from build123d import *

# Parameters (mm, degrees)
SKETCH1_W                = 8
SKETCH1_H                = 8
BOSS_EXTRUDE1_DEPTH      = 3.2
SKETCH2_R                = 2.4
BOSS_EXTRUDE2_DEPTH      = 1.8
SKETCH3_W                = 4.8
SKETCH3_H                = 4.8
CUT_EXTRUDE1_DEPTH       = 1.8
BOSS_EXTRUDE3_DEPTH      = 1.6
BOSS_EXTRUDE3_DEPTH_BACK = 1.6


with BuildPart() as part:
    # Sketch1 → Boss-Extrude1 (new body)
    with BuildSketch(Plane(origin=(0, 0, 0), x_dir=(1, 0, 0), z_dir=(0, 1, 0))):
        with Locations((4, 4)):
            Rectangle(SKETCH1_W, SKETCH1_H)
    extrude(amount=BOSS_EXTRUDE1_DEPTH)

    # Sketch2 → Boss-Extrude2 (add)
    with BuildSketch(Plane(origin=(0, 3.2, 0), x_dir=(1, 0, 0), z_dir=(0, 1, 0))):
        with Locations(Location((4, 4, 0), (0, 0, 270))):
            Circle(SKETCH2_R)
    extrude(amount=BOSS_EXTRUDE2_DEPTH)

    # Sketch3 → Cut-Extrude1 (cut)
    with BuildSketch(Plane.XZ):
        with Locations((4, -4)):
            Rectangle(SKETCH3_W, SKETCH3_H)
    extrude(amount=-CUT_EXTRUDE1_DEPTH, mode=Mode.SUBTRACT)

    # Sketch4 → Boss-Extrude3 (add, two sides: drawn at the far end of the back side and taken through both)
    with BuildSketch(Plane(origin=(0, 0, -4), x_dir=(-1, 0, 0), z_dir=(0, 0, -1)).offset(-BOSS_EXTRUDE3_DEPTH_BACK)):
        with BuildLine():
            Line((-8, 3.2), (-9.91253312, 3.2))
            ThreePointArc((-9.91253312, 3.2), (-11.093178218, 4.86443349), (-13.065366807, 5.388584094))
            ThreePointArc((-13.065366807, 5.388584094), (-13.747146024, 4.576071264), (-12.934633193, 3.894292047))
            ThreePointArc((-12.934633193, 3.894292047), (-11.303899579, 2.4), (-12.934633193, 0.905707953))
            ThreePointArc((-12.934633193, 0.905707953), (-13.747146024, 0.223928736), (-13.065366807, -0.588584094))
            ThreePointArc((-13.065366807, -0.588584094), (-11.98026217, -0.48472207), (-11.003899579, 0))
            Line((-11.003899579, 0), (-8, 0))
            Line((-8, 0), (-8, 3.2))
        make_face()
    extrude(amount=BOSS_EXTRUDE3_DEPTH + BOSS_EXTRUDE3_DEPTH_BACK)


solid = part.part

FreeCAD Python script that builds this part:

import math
import FreeCAD as App
import Part
import Sketcher
from FreeCAD import Vector
Q = App.Units.Quantity


def add_polygon(sketch, points):
    """Adds a closed chain of lines whose ends are joined by coincident constraints."""
    first, n = sketch.GeometryCount, len(points)
    for a, b in zip(points, points[1:] + points[:1]):
        sketch.addGeometry(Part.LineSegment(App.Vector(*a, 0), App.Vector(*b, 0)), False)
    for i in range(n):
        sketch.addConstraint(Sketcher.Constraint("Coincident", first + i, 2, first + (i + 1) % n, 1))

doc = App.newDocument("Part")
body = doc.addObject("PartDesign::Body", "Body")

# Sketch on XZ plane
sketch1 = body.newObject("Sketcher::SketchObject", "Sketch")
sketch1.AttachmentSupport = (doc.getObject("XZ_Plane"), [""])
sketch1.MapMode = "FlatFace"
add_polygon(sketch1, [(0, -8), (0, 0), (8, 0), (8, -8)])  # lines 0-3
sketch1.addConstraint([
    Sketcher.Constraint("Vertical", 0),
    Sketcher.Constraint("Horizontal", 1),
    Sketcher.Constraint("Vertical", 2),
    Sketcher.Constraint("Horizontal", 3),
    Sketcher.Constraint("Coincident", 0, 2, -1, 1),
    Sketcher.Constraint("Equal", 3, 0),
    Sketcher.Constraint("DistanceX", 1, 1, 1, 2, Q("8 mm")),
])
pad1 = body.newObject("PartDesign::Pad", "Pad")
pad1.Profile = sketch1
pad1.Length = 3.2
pad1.Reversed = True

# Sketch on XZ plane
sketch2 = body.newObject("Sketcher::SketchObject", "Sketch001")
sketch2.AttachmentSupport = (doc.getObject("XZ_Plane"), [""])
sketch2.MapMode = "FlatFace"
sketch2.AttachmentOffset = App.Placement(Vector(0, 0, -3.2), App.Rotation())
sketch2.addGeometry(Part.Circle(Vector(4, -4, 0), Vector(0, 0, 1), 2.4), False)
sketch2.addConstraint([
    Sketcher.Constraint("Diameter", 0, Q("4.8 mm")),
    Sketcher.Constraint("DistanceX", -1, 1, 0, 3, Q("4 mm")),
    Sketcher.Constraint("DistanceY", 0, 3, -1, 1, Q("4 mm")),
])
pad2 = body.newObject("PartDesign::Pad", "Pad001")
pad2.Profile = sketch2
pad2.Length = 1.8
pad2.Reversed = True

# Sketch on XZ plane
sketch3 = body.newObject("Sketcher::SketchObject", "Sketch002")
sketch3.AttachmentSupport = (doc.getObject("XZ_Plane"), [""])
sketch3.MapMode = "FlatFace"
add_polygon(sketch3, [(1.6, -1.6), (1.6, -6.4), (6.4, -6.4), (6.4, -1.6)])  # lines 0-3
sketch3.addConstraint([
    Sketcher.Constraint("Vertical", 0),
    Sketcher.Constraint("Horizontal", 1),
    Sketcher.Constraint("Vertical", 2),
    Sketcher.Constraint("Horizontal", 3),
    Sketcher.Constraint("Equal", 3, 0),
    Sketcher.Constraint("DistanceX", 1, 1, 1, 2, Q("4.8 mm")),
    Sketcher.Constraint("DistanceX", -1, 1, 0, 2, Q("1.6 mm")),
    Sketcher.Constraint("DistanceY", 0, 2, -1, 1, Q("6.4 mm")),
])
pocket1 = body.newObject("PartDesign::Pocket", "Pocket")
pocket1.Profile = sketch3
pocket1.Length = 1.8

# Sketch on XY plane
sketch4 = body.newObject("Sketcher::SketchObject", "Sketch003")
sketch4.AttachmentSupport = (doc.getObject("XY_Plane"), [""])
sketch4.MapMode = "FlatFace"
sketch4.AttachmentOffset = App.Placement(Vector(0, 0, -4), App.Rotation())
sketch4.addGeometry([
    Part.LineSegment(Vector(8, 3.2, 0), Vector(9.912533, 3.2, 0)),  # 0
    Part.ArcOfCircle(Part.Circle(Vector(12.8039, 2.4, 0), Vector(0, 0, 1), 3), math.radians(85), math.radians(164.53399)),  # 1
    Part.ArcOfCircle(Part.Circle(Vector(13, 4.641438, 0), Vector(0, 0, 1), 0.75), math.radians(-95), math.radians(85)),  # 2
    Part.ArcOfCircle(Part.Circle(Vector(12.8039, 2.4, 0), Vector(0, 0, 1), 1.5), math.radians(85), math.radians(275)),  # 3
    Part.ArcOfCircle(Part.Circle(Vector(13, 0.158562, 0), Vector(0, 0, 1), 0.75), math.radians(-85), math.radians(95)),  # 4
    Part.ArcOfCircle(Part.Circle(Vector(12.8039, 2.4, 0), Vector(0, 0, 1), 3), math.radians(-126.869898), math.radians(-85)),  # 5
    Part.LineSegment(Vector(11.0039, 0, 0), Vector(8, 0, 0)),  # 6
    Part.LineSegment(Vector(8, 0, 0), Vector(8, 3.2, 0)),  # 7
], False)
sketch4.addConstraint([
    Sketcher.Constraint("Coincident", 0, 2, 1, 2),
    Sketcher.Constraint("Tangent", 1, 1, 2, 2),
    Sketcher.Constraint("Tangent", 2, 1, 3, 1),
    Sketcher.Constraint("Tangent", 3, 2, 4, 2),
    Sketcher.Constraint("Tangent", 4, 1, 5, 2),
    Sketcher.Constraint("Coincident", 5, 1, 6, 1),
    Sketcher.Constraint("Coincident", 6, 2, 7, 1),
    Sketcher.Constraint("Coincident", 7, 2, 0, 1),
    Sketcher.Constraint("Horizontal", 0),
    Sketcher.Constraint("Horizontal", 6),
    Sketcher.Constraint("Vertical", 7),
    Sketcher.Constraint("Coincident", 3, 3, 1, 3),
    Sketcher.Constraint("Coincident", 5, 3, 1, 3),
    Sketcher.Constraint("Equal", 2, 4),
    Sketcher.Constraint("PointOnObject", 5, 1, -1),
    Sketcher.Constraint("Vertical", 2, 3, 4, 3),
    Sketcher.Constraint("Radius", 1, Q("3 mm")),
    Sketcher.Constraint("Radius", 3, Q("1.5 mm")),
    Sketcher.Constraint("DistanceY", 7, 1, 7, 2, Q("3.2 mm")),
    Sketcher.Constraint("DistanceX", -1, 1, 2, 3, Q("13 mm")),
    Sketcher.Constraint("DistanceX", -1, 1, 6, 2, Q("8 mm")),
    Sketcher.Constraint("DistanceY", -1, 1, 1, 3, Q("2.4 mm")),
    Sketcher.Constraint("DistanceX", 6, 2, 6, 1, Q("3.0039 mm")),
])
pad3 = body.newObject("PartDesign::Pad", "Pad002")
pad3.Profile = sketch4
pad3.Type = "TwoLengths"
pad3.Length = 1.6
pad3.Length2 = 1.6
pad3.Reversed = True

doc.recompute()
